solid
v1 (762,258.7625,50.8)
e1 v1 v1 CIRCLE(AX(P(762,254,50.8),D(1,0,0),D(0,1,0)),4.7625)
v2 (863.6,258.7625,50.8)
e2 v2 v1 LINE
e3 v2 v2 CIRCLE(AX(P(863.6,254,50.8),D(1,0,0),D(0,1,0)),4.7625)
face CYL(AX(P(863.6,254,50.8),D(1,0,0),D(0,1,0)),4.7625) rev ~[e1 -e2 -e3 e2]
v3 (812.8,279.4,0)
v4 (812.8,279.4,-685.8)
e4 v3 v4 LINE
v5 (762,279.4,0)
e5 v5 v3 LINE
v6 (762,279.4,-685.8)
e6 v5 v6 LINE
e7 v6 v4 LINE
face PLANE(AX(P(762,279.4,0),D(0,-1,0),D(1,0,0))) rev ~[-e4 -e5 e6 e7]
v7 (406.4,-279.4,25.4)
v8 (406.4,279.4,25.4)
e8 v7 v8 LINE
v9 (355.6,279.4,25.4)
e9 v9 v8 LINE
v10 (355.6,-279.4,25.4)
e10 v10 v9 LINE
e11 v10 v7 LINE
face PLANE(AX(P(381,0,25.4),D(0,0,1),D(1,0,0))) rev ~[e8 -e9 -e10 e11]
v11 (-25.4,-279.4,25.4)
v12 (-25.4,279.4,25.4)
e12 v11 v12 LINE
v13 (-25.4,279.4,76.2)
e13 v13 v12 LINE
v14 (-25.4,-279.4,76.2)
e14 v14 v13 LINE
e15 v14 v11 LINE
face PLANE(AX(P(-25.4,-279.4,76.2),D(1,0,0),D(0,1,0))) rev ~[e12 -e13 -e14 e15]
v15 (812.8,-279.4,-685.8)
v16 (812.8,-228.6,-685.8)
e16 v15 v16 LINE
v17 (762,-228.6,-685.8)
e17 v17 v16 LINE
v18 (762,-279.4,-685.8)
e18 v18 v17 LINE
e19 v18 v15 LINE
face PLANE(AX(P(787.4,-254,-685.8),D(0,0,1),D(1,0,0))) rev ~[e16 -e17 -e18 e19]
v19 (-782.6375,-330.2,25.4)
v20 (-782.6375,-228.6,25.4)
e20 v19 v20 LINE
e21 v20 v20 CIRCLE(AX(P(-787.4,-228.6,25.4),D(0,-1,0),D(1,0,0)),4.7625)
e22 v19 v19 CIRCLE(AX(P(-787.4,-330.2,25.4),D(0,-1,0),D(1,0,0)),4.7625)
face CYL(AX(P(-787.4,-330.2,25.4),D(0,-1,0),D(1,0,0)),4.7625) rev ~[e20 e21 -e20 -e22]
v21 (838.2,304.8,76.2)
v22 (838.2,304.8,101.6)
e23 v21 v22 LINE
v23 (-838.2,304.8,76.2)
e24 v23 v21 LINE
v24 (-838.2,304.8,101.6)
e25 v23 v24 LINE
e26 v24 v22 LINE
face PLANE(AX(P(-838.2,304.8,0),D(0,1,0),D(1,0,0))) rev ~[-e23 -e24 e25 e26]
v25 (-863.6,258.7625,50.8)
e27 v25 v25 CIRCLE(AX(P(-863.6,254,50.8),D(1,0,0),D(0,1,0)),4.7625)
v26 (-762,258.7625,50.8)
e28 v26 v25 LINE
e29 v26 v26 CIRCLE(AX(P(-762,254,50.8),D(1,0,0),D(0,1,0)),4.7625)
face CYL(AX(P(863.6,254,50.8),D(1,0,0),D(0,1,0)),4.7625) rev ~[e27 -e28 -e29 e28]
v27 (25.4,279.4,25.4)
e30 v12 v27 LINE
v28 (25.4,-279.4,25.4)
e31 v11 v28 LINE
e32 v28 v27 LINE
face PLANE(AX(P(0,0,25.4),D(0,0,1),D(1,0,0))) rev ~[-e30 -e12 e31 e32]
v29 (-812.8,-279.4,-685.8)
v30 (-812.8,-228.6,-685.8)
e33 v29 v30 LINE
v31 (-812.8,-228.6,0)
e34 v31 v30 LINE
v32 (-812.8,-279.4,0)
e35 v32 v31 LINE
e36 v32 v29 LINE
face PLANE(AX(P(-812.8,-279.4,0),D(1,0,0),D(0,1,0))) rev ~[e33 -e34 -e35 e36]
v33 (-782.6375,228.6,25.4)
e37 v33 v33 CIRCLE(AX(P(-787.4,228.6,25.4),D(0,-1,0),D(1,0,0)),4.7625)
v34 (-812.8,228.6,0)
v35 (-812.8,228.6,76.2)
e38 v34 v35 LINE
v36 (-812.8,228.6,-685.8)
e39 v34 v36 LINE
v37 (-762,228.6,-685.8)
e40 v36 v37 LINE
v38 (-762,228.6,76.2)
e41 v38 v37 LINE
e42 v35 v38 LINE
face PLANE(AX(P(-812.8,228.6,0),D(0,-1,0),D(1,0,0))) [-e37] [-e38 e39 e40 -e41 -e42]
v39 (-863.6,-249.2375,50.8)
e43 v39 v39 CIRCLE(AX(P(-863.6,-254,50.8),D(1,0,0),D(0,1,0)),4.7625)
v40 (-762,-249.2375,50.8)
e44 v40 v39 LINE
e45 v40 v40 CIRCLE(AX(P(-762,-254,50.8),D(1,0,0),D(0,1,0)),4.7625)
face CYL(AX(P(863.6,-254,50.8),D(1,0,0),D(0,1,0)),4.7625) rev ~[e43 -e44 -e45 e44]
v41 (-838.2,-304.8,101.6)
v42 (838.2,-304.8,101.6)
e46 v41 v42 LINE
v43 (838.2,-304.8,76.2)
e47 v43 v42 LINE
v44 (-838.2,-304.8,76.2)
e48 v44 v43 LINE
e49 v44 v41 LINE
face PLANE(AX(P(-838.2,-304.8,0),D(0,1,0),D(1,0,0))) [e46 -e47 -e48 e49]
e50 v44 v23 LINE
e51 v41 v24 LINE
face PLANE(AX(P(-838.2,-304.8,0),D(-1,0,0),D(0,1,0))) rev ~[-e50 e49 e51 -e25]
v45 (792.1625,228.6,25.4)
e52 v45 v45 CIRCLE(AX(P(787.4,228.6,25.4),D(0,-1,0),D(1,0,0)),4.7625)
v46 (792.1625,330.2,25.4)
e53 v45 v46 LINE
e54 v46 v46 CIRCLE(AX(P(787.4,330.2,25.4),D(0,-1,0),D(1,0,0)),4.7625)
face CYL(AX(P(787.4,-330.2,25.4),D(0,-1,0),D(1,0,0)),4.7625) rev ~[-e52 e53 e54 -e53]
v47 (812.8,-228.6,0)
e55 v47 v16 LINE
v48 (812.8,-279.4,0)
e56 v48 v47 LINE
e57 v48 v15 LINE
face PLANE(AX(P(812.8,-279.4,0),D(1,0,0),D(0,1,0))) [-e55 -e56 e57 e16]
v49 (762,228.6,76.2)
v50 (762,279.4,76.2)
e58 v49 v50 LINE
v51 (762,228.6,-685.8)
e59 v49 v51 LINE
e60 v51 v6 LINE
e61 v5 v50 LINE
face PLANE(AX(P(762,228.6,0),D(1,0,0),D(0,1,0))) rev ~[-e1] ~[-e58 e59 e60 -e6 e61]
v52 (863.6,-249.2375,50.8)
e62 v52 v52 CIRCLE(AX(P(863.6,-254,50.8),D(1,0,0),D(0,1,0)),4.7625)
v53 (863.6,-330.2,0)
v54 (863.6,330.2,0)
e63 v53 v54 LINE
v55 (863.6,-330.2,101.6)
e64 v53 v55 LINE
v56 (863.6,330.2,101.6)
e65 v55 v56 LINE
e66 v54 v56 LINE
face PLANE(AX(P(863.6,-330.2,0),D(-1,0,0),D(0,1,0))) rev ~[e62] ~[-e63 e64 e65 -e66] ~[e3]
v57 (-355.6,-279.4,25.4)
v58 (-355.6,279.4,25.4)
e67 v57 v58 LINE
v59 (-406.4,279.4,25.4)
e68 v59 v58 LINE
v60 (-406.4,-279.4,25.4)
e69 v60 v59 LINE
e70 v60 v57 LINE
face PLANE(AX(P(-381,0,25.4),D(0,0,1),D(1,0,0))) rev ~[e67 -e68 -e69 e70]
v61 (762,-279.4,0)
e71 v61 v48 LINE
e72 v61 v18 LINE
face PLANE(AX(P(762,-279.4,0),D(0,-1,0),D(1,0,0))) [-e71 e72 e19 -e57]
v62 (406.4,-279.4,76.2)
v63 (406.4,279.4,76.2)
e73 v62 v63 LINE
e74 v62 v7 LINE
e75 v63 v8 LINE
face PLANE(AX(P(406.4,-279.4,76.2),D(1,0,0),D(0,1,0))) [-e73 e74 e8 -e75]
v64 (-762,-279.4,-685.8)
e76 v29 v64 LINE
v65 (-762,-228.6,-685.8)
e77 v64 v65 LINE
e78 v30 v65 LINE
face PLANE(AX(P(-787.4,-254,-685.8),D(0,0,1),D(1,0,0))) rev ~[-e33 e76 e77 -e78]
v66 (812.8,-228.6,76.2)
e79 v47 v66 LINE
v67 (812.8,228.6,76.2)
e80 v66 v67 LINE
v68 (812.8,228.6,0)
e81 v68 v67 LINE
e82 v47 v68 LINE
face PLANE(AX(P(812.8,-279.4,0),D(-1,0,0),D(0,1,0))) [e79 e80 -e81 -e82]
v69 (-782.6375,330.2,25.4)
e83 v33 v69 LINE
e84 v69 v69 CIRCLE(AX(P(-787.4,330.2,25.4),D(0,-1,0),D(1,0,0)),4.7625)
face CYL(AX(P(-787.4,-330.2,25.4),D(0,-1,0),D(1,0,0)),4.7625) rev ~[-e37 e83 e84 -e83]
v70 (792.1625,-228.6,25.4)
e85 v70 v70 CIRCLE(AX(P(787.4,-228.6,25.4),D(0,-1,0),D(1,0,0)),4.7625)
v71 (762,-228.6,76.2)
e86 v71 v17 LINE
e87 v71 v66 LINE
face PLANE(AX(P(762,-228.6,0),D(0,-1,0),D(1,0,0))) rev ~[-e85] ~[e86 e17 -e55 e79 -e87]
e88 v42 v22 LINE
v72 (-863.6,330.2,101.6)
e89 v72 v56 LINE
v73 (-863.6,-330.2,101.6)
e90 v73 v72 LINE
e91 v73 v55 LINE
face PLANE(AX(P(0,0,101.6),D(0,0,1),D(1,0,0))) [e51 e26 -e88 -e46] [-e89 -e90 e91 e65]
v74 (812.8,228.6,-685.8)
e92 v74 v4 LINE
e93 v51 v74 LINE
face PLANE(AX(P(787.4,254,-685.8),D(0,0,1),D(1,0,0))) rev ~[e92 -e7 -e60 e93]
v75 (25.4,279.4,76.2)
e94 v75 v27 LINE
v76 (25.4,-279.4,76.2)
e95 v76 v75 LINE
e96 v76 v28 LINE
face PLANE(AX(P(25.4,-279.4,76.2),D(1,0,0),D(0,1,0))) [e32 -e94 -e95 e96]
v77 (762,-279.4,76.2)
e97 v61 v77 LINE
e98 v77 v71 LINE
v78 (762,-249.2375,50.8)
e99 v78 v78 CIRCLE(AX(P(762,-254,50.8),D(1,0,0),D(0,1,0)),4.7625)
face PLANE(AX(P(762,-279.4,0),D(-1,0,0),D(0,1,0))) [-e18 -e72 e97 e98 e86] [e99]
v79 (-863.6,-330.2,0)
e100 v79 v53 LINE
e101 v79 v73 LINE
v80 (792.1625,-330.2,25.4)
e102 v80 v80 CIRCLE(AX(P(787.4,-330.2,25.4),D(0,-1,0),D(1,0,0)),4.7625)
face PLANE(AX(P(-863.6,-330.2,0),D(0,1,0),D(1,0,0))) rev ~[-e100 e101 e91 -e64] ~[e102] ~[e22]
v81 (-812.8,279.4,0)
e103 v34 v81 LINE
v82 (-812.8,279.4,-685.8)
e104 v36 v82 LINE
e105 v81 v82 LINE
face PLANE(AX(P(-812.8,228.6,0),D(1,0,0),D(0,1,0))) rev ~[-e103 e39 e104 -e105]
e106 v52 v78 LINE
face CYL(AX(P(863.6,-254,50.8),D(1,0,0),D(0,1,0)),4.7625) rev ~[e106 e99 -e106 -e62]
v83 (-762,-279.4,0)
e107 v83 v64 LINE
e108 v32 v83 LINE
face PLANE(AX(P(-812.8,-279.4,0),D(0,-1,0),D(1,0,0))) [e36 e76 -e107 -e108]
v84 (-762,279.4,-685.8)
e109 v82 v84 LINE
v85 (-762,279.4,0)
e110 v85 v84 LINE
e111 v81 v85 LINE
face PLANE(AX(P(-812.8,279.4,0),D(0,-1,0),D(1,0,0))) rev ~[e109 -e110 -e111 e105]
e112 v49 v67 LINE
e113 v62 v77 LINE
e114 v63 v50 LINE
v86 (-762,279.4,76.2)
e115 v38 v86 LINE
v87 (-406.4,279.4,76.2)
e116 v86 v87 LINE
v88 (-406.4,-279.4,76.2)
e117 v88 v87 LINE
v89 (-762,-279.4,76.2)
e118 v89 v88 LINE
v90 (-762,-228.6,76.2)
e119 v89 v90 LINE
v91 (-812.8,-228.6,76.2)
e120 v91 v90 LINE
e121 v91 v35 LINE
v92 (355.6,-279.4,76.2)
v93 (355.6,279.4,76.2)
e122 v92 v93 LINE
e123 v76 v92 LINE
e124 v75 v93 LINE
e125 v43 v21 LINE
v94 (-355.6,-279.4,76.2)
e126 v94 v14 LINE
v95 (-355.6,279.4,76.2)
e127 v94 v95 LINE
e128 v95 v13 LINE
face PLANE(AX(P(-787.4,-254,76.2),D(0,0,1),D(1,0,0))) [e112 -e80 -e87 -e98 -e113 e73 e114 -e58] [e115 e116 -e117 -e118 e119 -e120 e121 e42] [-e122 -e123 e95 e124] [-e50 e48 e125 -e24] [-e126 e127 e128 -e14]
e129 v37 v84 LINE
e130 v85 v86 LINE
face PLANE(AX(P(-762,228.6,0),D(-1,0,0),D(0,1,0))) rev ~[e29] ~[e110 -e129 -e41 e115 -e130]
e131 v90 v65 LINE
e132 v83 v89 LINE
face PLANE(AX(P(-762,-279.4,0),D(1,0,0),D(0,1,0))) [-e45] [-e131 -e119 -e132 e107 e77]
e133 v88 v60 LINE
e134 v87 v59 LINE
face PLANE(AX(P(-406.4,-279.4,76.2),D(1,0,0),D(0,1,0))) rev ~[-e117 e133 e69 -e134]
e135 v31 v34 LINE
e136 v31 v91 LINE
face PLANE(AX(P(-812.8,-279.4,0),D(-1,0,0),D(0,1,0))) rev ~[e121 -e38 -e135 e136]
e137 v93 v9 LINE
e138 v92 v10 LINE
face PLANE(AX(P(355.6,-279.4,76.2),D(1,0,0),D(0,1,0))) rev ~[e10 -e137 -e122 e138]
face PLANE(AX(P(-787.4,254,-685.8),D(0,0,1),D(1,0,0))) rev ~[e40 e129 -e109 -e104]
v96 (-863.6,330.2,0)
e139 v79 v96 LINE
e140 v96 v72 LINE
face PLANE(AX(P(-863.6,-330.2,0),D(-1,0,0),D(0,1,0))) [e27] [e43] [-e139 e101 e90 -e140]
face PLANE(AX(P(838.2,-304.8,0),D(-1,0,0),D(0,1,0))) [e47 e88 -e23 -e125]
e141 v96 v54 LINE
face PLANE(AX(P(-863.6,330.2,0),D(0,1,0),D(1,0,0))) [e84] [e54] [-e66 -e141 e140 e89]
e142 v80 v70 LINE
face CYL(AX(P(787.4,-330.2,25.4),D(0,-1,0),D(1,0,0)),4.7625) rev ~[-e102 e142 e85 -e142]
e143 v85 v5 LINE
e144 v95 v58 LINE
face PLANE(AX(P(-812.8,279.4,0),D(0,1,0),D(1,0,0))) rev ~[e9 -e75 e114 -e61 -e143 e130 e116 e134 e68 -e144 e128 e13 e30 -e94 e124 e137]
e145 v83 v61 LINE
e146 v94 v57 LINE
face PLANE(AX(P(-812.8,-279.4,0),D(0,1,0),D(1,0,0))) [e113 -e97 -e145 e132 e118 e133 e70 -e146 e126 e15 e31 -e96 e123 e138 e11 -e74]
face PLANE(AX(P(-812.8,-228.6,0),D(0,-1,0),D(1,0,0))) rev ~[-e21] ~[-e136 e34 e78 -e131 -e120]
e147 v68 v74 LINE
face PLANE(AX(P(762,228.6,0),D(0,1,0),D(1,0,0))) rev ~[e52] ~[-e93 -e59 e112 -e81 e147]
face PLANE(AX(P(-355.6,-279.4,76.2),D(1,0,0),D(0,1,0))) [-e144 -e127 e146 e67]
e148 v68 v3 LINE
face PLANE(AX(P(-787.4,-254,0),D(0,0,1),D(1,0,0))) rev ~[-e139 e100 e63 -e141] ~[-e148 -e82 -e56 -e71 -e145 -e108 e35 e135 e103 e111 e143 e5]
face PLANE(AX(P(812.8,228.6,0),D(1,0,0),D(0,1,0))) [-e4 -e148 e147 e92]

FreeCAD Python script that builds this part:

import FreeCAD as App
import Part
import Sketcher
Q = App.Units.Quantity


def add_polygon(sketch, points):
    """Adds a closed chain of lines whose ends are joined by coincident constraints."""
    first, n = sketch.GeometryCount, len(points)
    for a, b in zip(points, points[1:] + points[:1]):
        sketch.addGeometry(Part.LineSegment(App.Vector(*a, 0), App.Vector(*b, 0)), False)
    for i in range(n):
        sketch.addConstraint(Sketcher.Constraint("Coincident", first + i, 2, first + (i + 1) % n, 1))

doc = App.newDocument("Part")
body = doc.addObject("PartDesign::Body", "Body")

sketch1 = body.newObject("Sketcher::SketchObject", "Sketch")
sketch1.AttachmentSupport = (doc.getObject("XY_Plane"), [""])
sketch1.MapMode = "FlatFace"
add_polygon(sketch1, [(-864, 330), (-864, -330), (864, -330), (864, 330)])
add_polygon(sketch1, [(838, -305), (-838, -305), (-838, 305), (838, 305)])
sketch1.addConstraint(Sketcher.Constraint("Vertical", 0))
sketch1.addConstraint(Sketcher.Constraint("Horizontal", 1))
sketch1.addConstraint(Sketcher.Constraint("Vertical", 2))
sketch1.addConstraint(Sketcher.Constraint("Horizontal", 3))
sketch1.addConstraint(Sketcher.Constraint("Horizontal", 4))
sketch1.addConstraint(Sketcher.Constraint("Vertical", 5))
sketch1.addConstraint(Sketcher.Constraint("Horizontal", 6))
sketch1.addConstraint(Sketcher.Constraint("Vertical", 7))
sketch1.addConstraint(Sketcher.Constraint("Symmetric", 0, 2, 2, 2, -1, 1))
sketch1.addConstraint(Sketcher.Constraint("Symmetric", 4, 2, 6, 2, -1, 1))
sketch1.addConstraint(Sketcher.Constraint("DistanceX", 1, 1, 1, 2, Q("68 in")))
sketch1.addConstraint(Sketcher.Constraint("DistanceX", 4, 2, 4, 1, Q("66 in")))
sketch1.addConstraint(Sketcher.Constraint("DistanceY", 0, 2, 0, 1, Q("26 in")))
sketch1.addConstraint(Sketcher.Constraint("DistanceY", 5, 1, 5, 2, Q("24 in")))
pad1 = body.newObject("PartDesign::Pad", "Pad")
pad1.Profile = sketch1
pad1.Length = Q("4 in")

sketch2 = body.newObject("Sketcher::SketchObject", "Sketch001")
sketch2.AttachmentSupport = (doc.getObject("XY_Plane"), [""])
sketch2.MapMode = "FlatFace"
add_polygon(sketch2, [(-838, 305), (-838, -305), (838, -305), (838, 305)])
add_polygon(sketch2, [(813, -279), (-813, -279), (-813, 279), (813, 279)])
sketch2.addConstraint(Sketcher.Constraint("Vertical", 0))
sketch2.addConstraint(Sketcher.Constraint("Horizontal", 1))
sketch2.addConstraint(Sketcher.Constraint("Vertical", 2))
sketch2.addConstraint(Sketcher.Constraint("Horizontal", 3))
sketch2.addConstraint(Sketcher.Constraint("Horizontal", 4))
sketch2.addConstraint(Sketcher.Constraint("Vertical", 5))
sketch2.addConstraint(Sketcher.Constraint("Horizontal", 6))
sketch2.addConstraint(Sketcher.Constraint("Vertical", 7))
sketch2.addConstraint(Sketcher.Constraint("Symmetric", 0, 2, 2, 2, -1, 1))
sketch2.addConstraint(Sketcher.Constraint("Symmetric", 4, 2, 6, 2, -1, 1))
sketch2.addConstraint(Sketcher.Constraint("DistanceX", 1, 1, 1, 2, Q("66 in")))
sketch2.addConstraint(Sketcher.Constraint("DistanceX", 4, 2, 4, 1, Q("64 in")))
sketch2.addConstraint(Sketcher.Constraint("DistanceY", 0, 2, 0, 1, Q("24 in")))
sketch2.addConstraint(Sketcher.Constraint("DistanceY", 5, 1, 5, 2, Q("22 in")))
pad2 = body.newObject("PartDesign::Pad", "Pad001")
pad2.Profile = sketch2
pad2.Length = Q("3 in")

sketch3 = body.newObject("Sketcher::SketchObject", "Sketch002")
sketch3.AttachmentSupport = (doc.getObject("XY_Plane"), [""])
sketch3.MapMode = "FlatFace"
add_polygon(sketch3, [(-813, -229), (-813, -279), (-762, -279), (-762, -229)])
add_polygon(sketch3, [(-813, 279), (-813, 229), (-762, 229), (-762, 279)])
add_polygon(sketch3, [(762, -229), (762, -279), (813, -279), (813, -229)])
add_polygon(sketch3, [(762, 279), (762, 229), (813, 229), (813, 279)])
sketch3.addConstraint(Sketcher.Constraint("Vertical", 0))
sketch3.addConstraint(Sketcher.Constraint("Horizontal", 1))
sketch3.addConstraint(Sketcher.Constraint("Vertical", 2))
sketch3.addConstraint(Sketcher.Constraint("Horizontal", 3))
sketch3.addConstraint(Sketcher.Constraint("Vertical", 4))
sketch3.addConstraint(Sketcher.Constraint("Horizontal", 5))
sketch3.addConstraint(Sketcher.Constraint("Vertical", 6))
sketch3.addConstraint(Sketcher.Constraint("Horizontal", 7))
sketch3.addConstraint(Sketcher.Constraint("Vertical", 8))
sketch3.addConstraint(Sketcher.Constraint("Horizontal", 9))
sketch3.addConstraint(Sketcher.Constraint("Vertical", 10))
sketch3.addConstraint(Sketcher.Constraint("Horizontal", 11))
sketch3.addConstraint(Sketcher.Constraint("Vertical", 12))
sketch3.addConstraint(Sketcher.Constraint("Horizontal", 13))
sketch3.addConstraint(Sketcher.Constraint("Vertical", 14))
sketch3.addConstraint(Sketcher.Constraint("Horizontal", 15))
sketch3.addConstraint(Sketcher.Constraint("Symmetric", 6, 2, 8, 2, -1, 1))
sketch3.addConstraint(Sketcher.Constraint("Symmetric", 4, 2, 10, 2, -1, 1))
sketch3.addConstraint(Sketcher.Constraint("Symmetric", 2, 2, 12, 2, -1, 1))
sketch3.addConstraint(Sketcher.Constraint("Symmetric", 0, 2, 14, 2, -1, 1))
sketch3.addConstraint(Sketcher.Constraint("Symmetric", 1, 2, 8, 2, -2))
sketch3.addConstraint(Sketcher.Constraint("Symmetric", 3, 2, 10, 2, -2))
sketch3.addConstraint(Sketcher.Constraint("Equal", 15, 0))
sketch3.addConstraint(Sketcher.Constraint("DistanceX", 1, 1, 1, 2, Q("2 in")))
sketch3.addConstraint(Sketcher.Constraint("DistanceX", 0, 2, -1, 1, Q("32 in")))
sketch3.addConstraint(Sketcher.Constraint("DistanceY", 0, 2, -1, 1, Q("11 in")))
pad3 = body.newObject("PartDesign::Pad", "Pad002")
pad3.Profile = sketch3
pad3.Type = "TwoLengths"
pad3.Length = Q("3 in")
pad3.Length2 = Q("27 in")

sketch4 = body.newObject("Sketcher::SketchObject", "Sketch003")
sketch4.AttachmentSupport = (doc.getObject("YZ_Plane"), [""])
sketch4.MapMode = "FlatFace"
sketch4.AttachmentOffset = App.Placement(App.Vector(0, 0, 34 * 25.4), App.Rotation())
sketch4.addGeometry(Part.Circle(App.Vector(-254, 50.8, 0), App.Vector(0, 0, 1), 4.8), False)
sketch4.addGeometry(Part.Circle(App.Vector(254, 50.8, 0), App.Vector(0, 0, 1), 4.8), False)
sketch4.addConstraint(Sketcher.Constraint("Equal", 0, 1))
sketch4.addConstraint(Sketcher.Constraint("Symmetric", 0, 3, 1, 3, -2))
sketch4.addConstraint(Sketcher.Constraint("Diameter", 0, Q("0.375 in")))
sketch4.addConstraint(Sketcher.Constraint("DistanceX", 0, 3, -1, 1, Q("10 in")))
sketch4.addConstraint(Sketcher.Constraint("DistanceY", -1, 1, 0, 3, Q("2 in")))
pocket1 = body.newObject("PartDesign::Pocket", "Pocket")
pocket1.Profile = sketch4
pocket1.Type = "ThroughAll"

sketch5 = body.newObject("Sketcher::SketchObject", "Sketch004")
sketch5.AttachmentSupport = (doc.getObject("XZ_Plane"), [""])
sketch5.MapMode = "FlatFace"
sketch5.AttachmentOffset = App.Placement(App.Vector(0, 0, 13 * 25.4), App.Rotation())
sketch5.addGeometry(Part.Circle(App.Vector(-787.4, 25.4, 0), App.Vector(0, 0, 1), 4.8), False)
sketch5.addGeometry(Part.Circle(App.Vector(787.4, 25.4, 0), App.Vector(0, 0, 1), 4.8), False)
sketch5.addConstraint(Sketcher.Constraint("Equal", 0, 1))
sketch5.addConstraint(Sketcher.Constraint("Symmetric", 0, 3, 1, 3, -2))
sketch5.addConstraint(Sketcher.Constraint("Diameter", 0, Q("0.375 in")))
sketch5.addConstraint(Sketcher.Constraint("DistanceX", 0, 3, -1, 1, Q("31 in")))
sketch5.addConstraint(Sketcher.Constraint("DistanceY", -1, 1, 0, 3, Q("1 in")))
pocket2 = body.newObject("PartDesign::Pocket", "Pocket001")
pocket2.Profile = sketch5
pocket2.Type = "ThroughAll"

sketch6 = body.newObject("Sketcher::SketchObject", "Sketch005")
sketch6.AttachmentSupport = (doc.getObject("XY_Plane"), [""])
sketch6.MapMode = "FlatFace"
sketch6.AttachmentOffset = App.Placement(App.Vector(0, 0, 3 * 25.4), App.Rotation())
add_polygon(sketch6, [(-406, 279), (-406, -279), (-356, -279), (-356, 279)])
add_polygon(sketch6, [(356, 279), (356, -279), (406, -279), (406, 279)])
add_polygon(sketch6, [(-25, 279), (-25, -279), (25, -279), (25, 279)])
sketch6.addConstraint(Sketcher.Constraint("Vertical", 0))
sketch6.addConstraint(Sketcher.Constraint("Horizontal", 1))
sketch6.addConstraint(Sketcher.Constraint("Vertical", 2))
sketch6.addConstraint(Sketcher.Constraint("Horizontal", 3))
sketch6.addConstraint(Sketcher.Constraint("Vertical", 4))
sketch6.addConstraint(Sketcher.Constraint("Horizontal", 5))
sketch6.addConstraint(Sketcher.Constraint("Vertical", 6))
sketch6.addConstraint(Sketcher.Constraint("Horizontal", 7))
sketch6.addConstraint(Sketcher.Constraint("Vertical", 8))
sketch6.addConstraint(Sketcher.Constraint("Horizontal", 9))
sketch6.addConstraint(Sketcher.Constraint("Vertical", 10))
sketch6.addConstraint(Sketcher.Constraint("Horizontal", 11))
sketch6.addConstraint(Sketcher.Constraint("Symmetric", 2, 2, 4, 2, -1, 1))
sketch6.addConstraint(Sketcher.Constraint("Symmetric", 0, 2, 6, 2, -1, 1))
sketch6.addConstraint(Sketcher.Constraint("Symmetric", 8, 2, 10, 2, -1, 1))
sketch6.addConstraint(Sketcher.Constraint("Horizontal", 1, 2, 4, 2))
sketch6.addConstraint(Sketcher.Constraint("Horizontal", 5, 2, 8, 2))
sketch6.addConstraint(Sketcher.Constraint("Equal", 7, 9))
sketch6.addConstraint(Sketcher.Constraint("DistanceX", 1, 1, 1, 2, Q("2 in")))
sketch6.addConstraint(Sketcher.Constraint("DistanceY", 0, 2, 0, 1, Q("22 in")))
sketch6.addConstraint(Sketcher.Constraint("DistanceX", 0, 2, -1, 1, Q("16 in")))
pad4 = body.newObject("PartDesign::Pad", "Pad003")
pad4.Profile = sketch6
pad4.Length = Q("2 in")
pad4.Reversed = True

doc.recompute()
